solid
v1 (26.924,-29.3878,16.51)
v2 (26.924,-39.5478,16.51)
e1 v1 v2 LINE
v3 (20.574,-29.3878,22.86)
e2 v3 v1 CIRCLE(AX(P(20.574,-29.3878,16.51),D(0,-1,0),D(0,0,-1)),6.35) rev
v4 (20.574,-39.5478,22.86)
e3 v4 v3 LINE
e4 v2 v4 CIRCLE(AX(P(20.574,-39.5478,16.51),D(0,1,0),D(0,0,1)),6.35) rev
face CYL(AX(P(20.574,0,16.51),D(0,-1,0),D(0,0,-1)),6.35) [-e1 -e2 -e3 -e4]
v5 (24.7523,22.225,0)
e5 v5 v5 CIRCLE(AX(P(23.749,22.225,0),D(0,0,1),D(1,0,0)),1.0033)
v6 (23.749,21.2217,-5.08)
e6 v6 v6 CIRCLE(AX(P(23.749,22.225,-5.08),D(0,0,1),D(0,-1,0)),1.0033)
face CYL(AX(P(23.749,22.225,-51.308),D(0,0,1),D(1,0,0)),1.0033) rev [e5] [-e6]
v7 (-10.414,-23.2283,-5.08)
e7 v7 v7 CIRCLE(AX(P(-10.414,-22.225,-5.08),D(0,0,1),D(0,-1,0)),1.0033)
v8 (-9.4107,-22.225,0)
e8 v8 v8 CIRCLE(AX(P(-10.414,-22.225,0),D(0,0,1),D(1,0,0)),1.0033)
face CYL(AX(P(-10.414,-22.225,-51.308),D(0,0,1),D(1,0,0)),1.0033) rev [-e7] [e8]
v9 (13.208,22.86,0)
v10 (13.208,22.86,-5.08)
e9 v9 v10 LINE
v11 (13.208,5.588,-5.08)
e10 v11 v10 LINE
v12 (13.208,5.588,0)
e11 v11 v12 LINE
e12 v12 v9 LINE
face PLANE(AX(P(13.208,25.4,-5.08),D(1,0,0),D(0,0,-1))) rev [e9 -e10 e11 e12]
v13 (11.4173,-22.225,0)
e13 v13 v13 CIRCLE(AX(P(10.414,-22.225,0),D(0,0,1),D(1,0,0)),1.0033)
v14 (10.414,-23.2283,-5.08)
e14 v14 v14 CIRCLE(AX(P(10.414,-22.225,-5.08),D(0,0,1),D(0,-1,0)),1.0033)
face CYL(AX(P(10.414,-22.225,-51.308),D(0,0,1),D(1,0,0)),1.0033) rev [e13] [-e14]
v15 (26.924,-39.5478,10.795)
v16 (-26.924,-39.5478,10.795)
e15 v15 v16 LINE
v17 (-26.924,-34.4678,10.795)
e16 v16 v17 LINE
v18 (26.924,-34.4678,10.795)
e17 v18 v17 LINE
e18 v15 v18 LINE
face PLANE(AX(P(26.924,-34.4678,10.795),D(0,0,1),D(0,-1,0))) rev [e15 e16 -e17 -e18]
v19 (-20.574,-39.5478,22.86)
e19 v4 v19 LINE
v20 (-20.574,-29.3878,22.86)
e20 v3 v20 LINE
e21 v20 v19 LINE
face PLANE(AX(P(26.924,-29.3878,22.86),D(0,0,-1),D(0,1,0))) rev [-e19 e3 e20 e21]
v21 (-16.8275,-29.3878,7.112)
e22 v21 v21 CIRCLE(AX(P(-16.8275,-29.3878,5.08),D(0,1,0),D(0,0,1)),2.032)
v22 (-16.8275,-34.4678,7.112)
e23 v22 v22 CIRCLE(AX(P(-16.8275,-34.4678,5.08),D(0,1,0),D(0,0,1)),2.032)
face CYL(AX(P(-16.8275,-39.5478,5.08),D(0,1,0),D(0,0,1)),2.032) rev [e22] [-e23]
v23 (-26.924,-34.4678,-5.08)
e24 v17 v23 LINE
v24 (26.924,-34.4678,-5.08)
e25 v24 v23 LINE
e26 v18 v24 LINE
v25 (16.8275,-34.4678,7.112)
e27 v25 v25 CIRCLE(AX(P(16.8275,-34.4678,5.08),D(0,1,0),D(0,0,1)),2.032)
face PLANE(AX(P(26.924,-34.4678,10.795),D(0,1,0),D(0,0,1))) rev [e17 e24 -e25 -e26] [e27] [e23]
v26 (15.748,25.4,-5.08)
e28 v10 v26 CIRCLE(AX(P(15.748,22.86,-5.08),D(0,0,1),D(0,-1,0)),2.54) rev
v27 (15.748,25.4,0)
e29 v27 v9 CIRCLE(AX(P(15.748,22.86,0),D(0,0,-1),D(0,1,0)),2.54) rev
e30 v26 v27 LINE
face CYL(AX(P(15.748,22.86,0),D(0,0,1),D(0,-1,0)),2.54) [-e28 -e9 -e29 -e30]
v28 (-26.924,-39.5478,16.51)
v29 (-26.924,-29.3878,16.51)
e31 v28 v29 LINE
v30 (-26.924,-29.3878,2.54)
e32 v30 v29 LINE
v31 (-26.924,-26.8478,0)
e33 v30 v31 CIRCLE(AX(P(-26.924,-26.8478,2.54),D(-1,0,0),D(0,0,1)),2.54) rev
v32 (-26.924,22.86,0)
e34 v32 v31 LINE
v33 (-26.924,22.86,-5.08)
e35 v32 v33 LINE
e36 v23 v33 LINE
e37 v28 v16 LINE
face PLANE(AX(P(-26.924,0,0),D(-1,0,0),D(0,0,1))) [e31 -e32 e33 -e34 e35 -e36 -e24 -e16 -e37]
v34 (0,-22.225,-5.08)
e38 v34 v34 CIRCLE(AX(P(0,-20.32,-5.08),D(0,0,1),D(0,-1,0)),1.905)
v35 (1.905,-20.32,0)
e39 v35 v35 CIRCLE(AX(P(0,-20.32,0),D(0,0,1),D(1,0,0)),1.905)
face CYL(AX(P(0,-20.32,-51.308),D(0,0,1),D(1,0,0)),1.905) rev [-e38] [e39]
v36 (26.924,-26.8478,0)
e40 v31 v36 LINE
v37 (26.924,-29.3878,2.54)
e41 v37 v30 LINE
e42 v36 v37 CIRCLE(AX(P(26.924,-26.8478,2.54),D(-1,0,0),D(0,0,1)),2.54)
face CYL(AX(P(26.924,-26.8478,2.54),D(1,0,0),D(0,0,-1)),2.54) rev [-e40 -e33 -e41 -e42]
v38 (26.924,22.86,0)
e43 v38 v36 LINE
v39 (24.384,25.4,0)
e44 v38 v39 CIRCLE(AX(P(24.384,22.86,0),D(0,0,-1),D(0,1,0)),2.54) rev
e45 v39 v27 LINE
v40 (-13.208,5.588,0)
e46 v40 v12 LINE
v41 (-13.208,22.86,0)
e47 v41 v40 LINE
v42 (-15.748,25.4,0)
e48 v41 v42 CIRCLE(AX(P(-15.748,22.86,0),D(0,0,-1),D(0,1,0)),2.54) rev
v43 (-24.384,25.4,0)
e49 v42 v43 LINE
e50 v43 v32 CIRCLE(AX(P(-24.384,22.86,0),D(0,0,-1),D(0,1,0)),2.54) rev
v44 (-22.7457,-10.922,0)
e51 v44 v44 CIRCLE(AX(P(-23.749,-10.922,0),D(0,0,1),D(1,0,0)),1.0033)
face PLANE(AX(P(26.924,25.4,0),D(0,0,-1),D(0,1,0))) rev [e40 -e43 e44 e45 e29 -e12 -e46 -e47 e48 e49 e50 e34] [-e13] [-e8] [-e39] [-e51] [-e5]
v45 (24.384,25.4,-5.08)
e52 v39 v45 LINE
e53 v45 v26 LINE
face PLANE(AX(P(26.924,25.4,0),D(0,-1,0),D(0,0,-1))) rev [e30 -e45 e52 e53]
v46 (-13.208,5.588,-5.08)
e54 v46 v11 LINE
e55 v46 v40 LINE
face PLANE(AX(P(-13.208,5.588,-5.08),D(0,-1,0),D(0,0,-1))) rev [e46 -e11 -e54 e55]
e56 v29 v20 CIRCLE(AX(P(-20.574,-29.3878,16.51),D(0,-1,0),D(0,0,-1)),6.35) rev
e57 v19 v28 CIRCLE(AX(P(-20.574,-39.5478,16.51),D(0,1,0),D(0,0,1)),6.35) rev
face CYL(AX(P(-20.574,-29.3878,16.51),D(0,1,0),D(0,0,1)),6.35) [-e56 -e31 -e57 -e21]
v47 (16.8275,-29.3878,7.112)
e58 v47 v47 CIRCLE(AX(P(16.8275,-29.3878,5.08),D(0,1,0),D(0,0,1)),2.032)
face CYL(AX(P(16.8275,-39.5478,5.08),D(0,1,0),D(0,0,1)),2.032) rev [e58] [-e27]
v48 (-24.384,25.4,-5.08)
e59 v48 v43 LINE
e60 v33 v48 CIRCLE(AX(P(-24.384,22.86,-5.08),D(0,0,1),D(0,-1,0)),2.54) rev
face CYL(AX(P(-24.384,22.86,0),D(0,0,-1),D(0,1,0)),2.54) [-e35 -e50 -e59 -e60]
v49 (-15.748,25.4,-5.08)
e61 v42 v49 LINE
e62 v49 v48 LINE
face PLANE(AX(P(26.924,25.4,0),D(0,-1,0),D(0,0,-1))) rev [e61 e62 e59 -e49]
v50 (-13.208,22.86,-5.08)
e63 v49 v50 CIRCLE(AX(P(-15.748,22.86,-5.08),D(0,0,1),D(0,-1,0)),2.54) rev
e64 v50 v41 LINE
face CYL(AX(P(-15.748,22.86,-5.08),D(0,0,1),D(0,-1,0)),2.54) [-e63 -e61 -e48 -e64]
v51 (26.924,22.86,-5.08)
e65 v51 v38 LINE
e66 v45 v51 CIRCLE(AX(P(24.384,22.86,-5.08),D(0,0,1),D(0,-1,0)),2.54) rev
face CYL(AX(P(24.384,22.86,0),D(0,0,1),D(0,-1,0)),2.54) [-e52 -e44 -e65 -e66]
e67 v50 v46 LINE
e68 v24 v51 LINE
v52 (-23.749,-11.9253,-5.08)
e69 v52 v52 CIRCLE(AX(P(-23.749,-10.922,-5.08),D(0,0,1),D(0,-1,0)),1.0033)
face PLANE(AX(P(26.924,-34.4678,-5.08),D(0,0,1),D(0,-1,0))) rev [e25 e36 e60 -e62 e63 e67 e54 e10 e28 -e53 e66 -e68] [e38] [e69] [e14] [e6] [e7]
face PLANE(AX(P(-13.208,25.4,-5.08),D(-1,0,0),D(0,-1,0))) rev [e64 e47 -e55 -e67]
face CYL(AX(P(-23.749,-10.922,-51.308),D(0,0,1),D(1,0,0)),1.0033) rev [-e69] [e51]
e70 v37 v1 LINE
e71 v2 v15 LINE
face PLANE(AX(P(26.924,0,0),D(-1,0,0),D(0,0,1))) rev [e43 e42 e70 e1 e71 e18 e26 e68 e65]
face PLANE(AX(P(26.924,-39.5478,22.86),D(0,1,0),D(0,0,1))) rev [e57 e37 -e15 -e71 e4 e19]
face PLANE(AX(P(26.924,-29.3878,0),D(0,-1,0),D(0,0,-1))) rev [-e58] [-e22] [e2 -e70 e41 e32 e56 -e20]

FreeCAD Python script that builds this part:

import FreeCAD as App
import Part
import Sketcher

V = App.Vector
Q = App.Units.Quantity


def edges_at(feature, points):
    """Names of the edges that pass closest to the given points."""
    edges = feature.Shape.Edges
    near = lambda p: min(range(len(edges)), key=lambda i: edges[i].distToShape(Part.Vertex(*p))[0])
    return sorted({f"Edge{near(p) + 1}" for p in points})


def add_polygon(sketch, points):
    """Adds a closed chain of lines whose ends are joined by coincident constraints."""
    first, n = sketch.GeometryCount, len(points)
    for a, b in zip(points, points[1:] + points[:1]):
        sketch.addGeometry(Part.LineSegment(App.Vector(*a, 0), App.Vector(*b, 0)), False)
    for i in range(n):
        sketch.addConstraint(Sketcher.Constraint("Coincident", first + i, 2, first + (i + 1) % n, 1))

doc = App.newDocument("Part")
body = doc.addObject("PartDesign::Body", "Body")

# Sketch on YZ plane
sketch1 = body.newObject("Sketcher::SketchObject", "Sketch")
sketch1.AttachmentSupport = (doc.getObject("YZ_Plane"), [""])
sketch1.MapMode = "FlatFace"
add_polygon(sketch1, [(-34, 11), (-34, -5), (25, -5), (25, 0), (-29, 0), (-29, 23), (-40, 23), (-40, 11)])  # lines 0-7
sketch1.addConstraint([
    Sketcher.Constraint("Vertical", 0),
    Sketcher.Constraint("Horizontal", 1),
    Sketcher.Constraint("Vertical", 2),
    Sketcher.Constraint("Horizontal", 3),
    Sketcher.Constraint("Vertical", 4),
    Sketcher.Constraint("Horizontal", 5),
    Sketcher.Constraint("Vertical", 6),
    Sketcher.Constraint("Horizontal", 7),
    Sketcher.Constraint("PointOnObject", 2, 2, -1),
    Sketcher.Constraint("Equal", 7, 2),
    Sketcher.Constraint("DistanceX", 5, 2, 5, 1, Q("0.4 in")),
    Sketcher.Constraint("DistanceX", 7, 1, 7, 2, Q("0.2 in")),
    Sketcher.Constraint("DistanceY", 4, 1, 4, 2, Q("0.9 in")),
    Sketcher.Constraint("DistanceX", -1, 1, 1, 2, Q("1 in")),
    Sketcher.Constraint("DistanceX", 1, 1, 1, 2, Q("2.357 in")),
    Sketcher.Constraint("DistanceY", 0, 2, 0, 1, Q("0.625 in")),
])
pad1 = body.newObject("PartDesign::Pad", "Pad")
pad1.Profile = sketch1
pad1.Length = Q("2.12 in")
pad1.Midplane = True

# Sketch on XY plane
sketch2 = body.newObject("Sketcher::SketchObject", "Sketch001")
sketch2.AttachmentSupport = (doc.getObject("XY_Plane"), [""])
sketch2.MapMode = "FlatFace"
sketch2.addGeometry([
    Part.Circle(V(23.7, 22.2, 0), V(0, 0, 1), 1),  # 0
    Part.Circle(V(-10.4, -22.2, 0), V(0, 0, 1), 1),  # 1
    Part.Circle(V(10.4, -22.2, 0), V(0, 0, 1), 1),  # 2
    Part.Circle(V(0, -20.3, 0), V(0, 0, 1), 1.9),  # 3
    Part.Circle(V(-23.7, -10.9, 0), V(0, 0, 1), 1),  # 4
], False)
sketch2.addConstraint([
    Sketcher.Constraint("Equal", 0, 1),
    Sketcher.Constraint("Equal", 1, 2),
    Sketcher.Constraint("Equal", 2, 4),
    Sketcher.Constraint("Symmetric", 1, 3, 2, 3, -2),
    Sketcher.Constraint("PointOnObject", 3, 3, -2),
    Sketcher.Constraint("Diameter", 3, Q("0.15 in")),
    Sketcher.Constraint("Diameter", 0, Q("0.079 in")),
    Sketcher.Constraint("DistanceY", 3, 3, -1, 1, Q("0.8 in")),
    Sketcher.Constraint("DistanceX", 1, 3, -1, 1, Q("0.41 in")),
    Sketcher.Constraint("DistanceY", 4, 3, -1, 1, Q("0.43 in")),
    Sketcher.Constraint("DistanceY", 1, 3, 0, 3, Q("1.75 in")),
    Sketcher.Constraint("DistanceX", 4, 3, 0, 3, Q("1.87 in")),
    Sketcher.Constraint("DistanceX", -1, 1, 0, 3, Q("0.935 in")),
    Sketcher.Constraint("DistanceY", -1, 1, 0, 3, Q("0.875 in")),
])
pocket1 = body.newObject("PartDesign::Pocket", "Pocket")
pocket1.Profile = sketch2
pocket1.Length = Q("2.02 in")

# Sketch on XY plane
sketch3 = body.newObject("Sketcher::SketchObject", "Sketch002")
sketch3.AttachmentSupport = (doc.getObject("XY_Plane"), [""])
sketch3.MapMode = "FlatFace"
add_polygon(sketch3, [(-13, 25), (-13, 6), (13, 6), (13, 25)])  # lines 0-3
sketch3.addConstraint([
    Sketcher.Constraint("Vertical", 0),
    Sketcher.Constraint("Horizontal", 1),
    Sketcher.Constraint("Vertical", 2),
    Sketcher.Constraint("Horizontal", 3),
    Sketcher.Constraint("DistanceY", -1, 1, 2, 2, Q("1 in")),
    Sketcher.Constraint("DistanceX", 1, 1, 1, 2, Q("1.04 in")),
    Sketcher.Constraint("DistanceY", 0, 2, 0, 1, Q("0.78 in")),
    Sketcher.Constraint("DistanceX", 0, 2, -1, 1, Q("0.52 in")),
])
pocket2 = body.newObject("PartDesign::Pocket", "Pocket001")
pocket2.Profile = sketch3
pocket2.Length = Q("0.2 in")
doc.recompute()

fillet = body.newObject("PartDesign::Fillet", "Fillet")
fillet.Base = (pocket2, edges_at(pocket2, [(26.924, -34.468, 22.86), (-26.924, -34.468, 22.86)]))
fillet.Radius = Q("0.25 in")
doc.recompute()

fillet2 = body.newObject("PartDesign::Fillet", "Fillet001")
fillet2.Base = (fillet, edges_at(fillet, [
    (26.924, 25.4, -2.54),
    (-13.208, 25.4, -2.54),
    (13.208, 25.4, -2.54),
    (-26.924, 25.4, -2.54),
]))
fillet2.Radius = Q("0.1 in")
doc.recompute()

fillet3 = body.newObject("PartDesign::Fillet", "Fillet002")
fillet3.Base = (fillet2, edges_at(fillet2, [(0, -29.388, 0)]))
fillet3.Radius = Q("0.1 in")

# Sketch on XZ plane
sketch4 = body.newObject("Sketcher::SketchObject", "Sketch003")
sketch4.AttachmentSupport = (doc.getObject("XZ_Plane"), [""])
sketch4.MapMode = "FlatFace"
sketch4.AttachmentOffset = App.Placement(V(0, 0, 1.157 * 25.4), App.Rotation())
sketch4.addGeometry([
    Part.Circle(V(-16.8, 5.1, 0), V(0, 0, 1), 2),
    Part.Circle(V(16.8, 5.1, 0), V(0, 0, 1), 2),
], False)
sketch4.addConstraint([
    Sketcher.Constraint("Equal", 0, 1),
    Sketcher.Constraint("Symmetric", 0, 3, 1, 3, -2),
    Sketcher.Constraint("Diameter", 0, Q("0.16 in")),
    Sketcher.Constraint("DistanceY", -1, 1, 0, 3, Q("0.2 in")),
    Sketcher.Constraint("DistanceX", 0, 3, 1, 3, Q("1.325 in")),
])
pocket3 = body.newObject("PartDesign::Pocket", "Pocket002")
pocket3.Profile = sketch4
pocket3.Type = "ThroughAll"
pocket3.Reversed = True

doc.recompute()
